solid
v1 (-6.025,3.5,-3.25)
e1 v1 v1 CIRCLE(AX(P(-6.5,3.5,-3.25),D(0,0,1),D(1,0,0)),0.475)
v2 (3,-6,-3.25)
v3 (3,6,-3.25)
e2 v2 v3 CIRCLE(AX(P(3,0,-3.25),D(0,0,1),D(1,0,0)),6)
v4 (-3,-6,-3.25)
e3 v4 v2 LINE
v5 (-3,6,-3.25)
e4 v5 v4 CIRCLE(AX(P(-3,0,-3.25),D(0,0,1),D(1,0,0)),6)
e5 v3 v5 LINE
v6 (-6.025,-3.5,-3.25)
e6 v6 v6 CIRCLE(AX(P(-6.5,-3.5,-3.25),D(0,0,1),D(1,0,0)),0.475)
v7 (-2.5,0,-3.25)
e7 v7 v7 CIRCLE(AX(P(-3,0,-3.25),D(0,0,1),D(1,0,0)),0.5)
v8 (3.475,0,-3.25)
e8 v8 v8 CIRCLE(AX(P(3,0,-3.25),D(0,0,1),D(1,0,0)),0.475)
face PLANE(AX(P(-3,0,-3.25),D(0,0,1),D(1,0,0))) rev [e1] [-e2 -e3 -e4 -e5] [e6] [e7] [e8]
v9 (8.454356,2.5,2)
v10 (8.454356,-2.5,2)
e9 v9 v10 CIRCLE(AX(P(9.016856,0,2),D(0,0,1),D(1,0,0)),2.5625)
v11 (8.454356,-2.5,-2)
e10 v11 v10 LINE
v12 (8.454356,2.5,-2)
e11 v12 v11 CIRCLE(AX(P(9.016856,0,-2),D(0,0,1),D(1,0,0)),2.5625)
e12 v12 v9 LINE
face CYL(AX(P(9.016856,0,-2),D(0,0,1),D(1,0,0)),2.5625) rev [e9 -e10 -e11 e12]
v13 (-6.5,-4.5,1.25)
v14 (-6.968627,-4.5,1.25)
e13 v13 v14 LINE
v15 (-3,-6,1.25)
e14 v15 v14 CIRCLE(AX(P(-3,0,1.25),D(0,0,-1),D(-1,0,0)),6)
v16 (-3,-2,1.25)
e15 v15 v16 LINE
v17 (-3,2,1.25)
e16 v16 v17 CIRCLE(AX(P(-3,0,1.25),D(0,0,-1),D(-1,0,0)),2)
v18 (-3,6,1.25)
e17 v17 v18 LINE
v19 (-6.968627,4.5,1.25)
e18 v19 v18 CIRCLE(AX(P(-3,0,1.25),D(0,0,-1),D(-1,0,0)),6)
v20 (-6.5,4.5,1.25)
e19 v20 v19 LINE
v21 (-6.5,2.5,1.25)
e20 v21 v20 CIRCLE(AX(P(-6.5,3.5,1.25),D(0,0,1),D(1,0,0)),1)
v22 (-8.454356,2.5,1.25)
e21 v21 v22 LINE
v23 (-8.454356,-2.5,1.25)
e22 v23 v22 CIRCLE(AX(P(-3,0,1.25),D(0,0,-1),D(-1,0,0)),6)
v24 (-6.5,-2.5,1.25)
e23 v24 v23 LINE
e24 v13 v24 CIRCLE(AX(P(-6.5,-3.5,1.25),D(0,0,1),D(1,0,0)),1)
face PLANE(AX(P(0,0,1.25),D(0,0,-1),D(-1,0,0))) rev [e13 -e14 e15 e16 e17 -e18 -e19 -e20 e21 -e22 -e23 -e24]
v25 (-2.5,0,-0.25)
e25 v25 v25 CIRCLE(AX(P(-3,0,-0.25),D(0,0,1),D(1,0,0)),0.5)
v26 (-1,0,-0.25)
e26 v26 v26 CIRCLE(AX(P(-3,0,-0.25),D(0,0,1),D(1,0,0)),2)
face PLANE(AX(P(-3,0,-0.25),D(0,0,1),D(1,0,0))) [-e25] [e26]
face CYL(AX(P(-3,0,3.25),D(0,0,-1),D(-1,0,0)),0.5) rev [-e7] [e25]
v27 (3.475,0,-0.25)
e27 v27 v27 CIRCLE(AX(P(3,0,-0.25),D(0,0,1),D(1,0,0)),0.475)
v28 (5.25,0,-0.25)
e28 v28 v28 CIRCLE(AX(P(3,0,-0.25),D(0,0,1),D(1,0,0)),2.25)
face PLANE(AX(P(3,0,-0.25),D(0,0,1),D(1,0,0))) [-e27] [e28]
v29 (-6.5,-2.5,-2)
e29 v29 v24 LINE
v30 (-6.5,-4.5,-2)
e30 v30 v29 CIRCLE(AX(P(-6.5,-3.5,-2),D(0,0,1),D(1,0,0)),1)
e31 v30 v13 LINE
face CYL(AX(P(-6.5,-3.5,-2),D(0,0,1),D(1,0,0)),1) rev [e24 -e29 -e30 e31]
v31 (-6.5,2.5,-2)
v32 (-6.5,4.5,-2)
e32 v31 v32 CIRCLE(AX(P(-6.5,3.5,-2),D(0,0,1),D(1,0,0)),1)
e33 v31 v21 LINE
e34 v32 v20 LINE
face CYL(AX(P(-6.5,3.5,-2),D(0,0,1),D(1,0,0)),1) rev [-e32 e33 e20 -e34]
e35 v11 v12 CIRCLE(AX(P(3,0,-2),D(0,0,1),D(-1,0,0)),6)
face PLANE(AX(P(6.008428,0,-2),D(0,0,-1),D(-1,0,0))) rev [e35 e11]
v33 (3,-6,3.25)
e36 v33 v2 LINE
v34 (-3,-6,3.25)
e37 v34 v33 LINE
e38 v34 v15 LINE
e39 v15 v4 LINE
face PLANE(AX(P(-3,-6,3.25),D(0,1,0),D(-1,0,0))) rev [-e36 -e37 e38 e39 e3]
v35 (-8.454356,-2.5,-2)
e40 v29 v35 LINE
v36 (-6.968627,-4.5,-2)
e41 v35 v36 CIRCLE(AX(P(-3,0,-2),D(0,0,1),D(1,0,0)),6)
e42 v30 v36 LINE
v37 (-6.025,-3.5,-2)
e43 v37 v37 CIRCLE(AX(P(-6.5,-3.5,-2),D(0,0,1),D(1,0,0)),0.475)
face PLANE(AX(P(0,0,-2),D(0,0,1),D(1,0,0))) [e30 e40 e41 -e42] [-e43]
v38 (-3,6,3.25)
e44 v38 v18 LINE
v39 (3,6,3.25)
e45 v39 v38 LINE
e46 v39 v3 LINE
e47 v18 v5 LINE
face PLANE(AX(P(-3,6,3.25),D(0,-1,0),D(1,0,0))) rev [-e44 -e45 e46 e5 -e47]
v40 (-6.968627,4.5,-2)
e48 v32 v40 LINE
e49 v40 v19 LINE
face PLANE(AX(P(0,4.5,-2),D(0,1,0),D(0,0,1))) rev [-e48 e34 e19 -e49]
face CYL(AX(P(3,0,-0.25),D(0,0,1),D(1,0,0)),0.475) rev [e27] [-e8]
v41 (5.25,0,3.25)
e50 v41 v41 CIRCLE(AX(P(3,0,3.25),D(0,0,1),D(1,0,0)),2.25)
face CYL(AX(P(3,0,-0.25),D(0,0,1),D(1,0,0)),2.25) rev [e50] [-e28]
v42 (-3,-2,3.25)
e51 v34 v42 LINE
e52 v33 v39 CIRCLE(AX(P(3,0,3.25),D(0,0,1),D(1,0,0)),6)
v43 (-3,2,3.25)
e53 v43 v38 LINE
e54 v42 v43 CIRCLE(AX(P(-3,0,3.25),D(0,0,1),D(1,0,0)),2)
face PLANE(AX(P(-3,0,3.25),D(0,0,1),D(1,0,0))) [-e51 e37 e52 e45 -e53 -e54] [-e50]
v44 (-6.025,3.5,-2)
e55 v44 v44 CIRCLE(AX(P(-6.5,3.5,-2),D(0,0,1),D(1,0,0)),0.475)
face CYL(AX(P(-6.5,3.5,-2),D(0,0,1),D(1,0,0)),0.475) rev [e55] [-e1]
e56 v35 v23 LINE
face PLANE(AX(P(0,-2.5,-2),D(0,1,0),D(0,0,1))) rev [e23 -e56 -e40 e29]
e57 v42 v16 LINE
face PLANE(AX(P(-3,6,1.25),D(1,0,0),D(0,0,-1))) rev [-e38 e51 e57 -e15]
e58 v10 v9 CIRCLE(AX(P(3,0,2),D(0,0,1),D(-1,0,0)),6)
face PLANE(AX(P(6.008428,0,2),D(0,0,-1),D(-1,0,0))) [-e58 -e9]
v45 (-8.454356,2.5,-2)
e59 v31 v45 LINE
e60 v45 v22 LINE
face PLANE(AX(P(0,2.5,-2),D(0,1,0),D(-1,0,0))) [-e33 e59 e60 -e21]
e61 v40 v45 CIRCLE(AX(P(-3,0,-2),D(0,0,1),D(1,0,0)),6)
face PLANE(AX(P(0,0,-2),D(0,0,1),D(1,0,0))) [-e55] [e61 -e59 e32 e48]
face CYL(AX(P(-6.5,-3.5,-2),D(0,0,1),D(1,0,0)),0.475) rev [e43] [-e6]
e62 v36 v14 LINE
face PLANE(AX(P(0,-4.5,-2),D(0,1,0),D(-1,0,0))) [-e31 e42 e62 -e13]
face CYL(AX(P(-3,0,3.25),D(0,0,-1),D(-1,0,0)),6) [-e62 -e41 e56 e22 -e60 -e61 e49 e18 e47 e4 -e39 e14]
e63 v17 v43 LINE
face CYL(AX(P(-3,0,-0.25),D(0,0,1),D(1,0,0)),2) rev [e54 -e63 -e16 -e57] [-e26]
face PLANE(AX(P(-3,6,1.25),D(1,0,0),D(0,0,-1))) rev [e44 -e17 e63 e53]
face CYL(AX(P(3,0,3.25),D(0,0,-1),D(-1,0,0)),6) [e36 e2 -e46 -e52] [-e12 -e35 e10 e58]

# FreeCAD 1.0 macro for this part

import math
import FreeCAD as App
import Part
import Sketcher


def add_polygon(sketch, points):
    """Adds a closed chain of lines whose ends are joined by coincident constraints."""
    first, n = sketch.GeometryCount, len(points)
    for a, b in zip(points, points[1:] + points[:1]):
        sketch.addGeometry(Part.LineSegment(App.Vector(*a, 0), App.Vector(*b, 0)), False)
    for i in range(n):
        sketch.addConstraint(Sketcher.Constraint("Coincident", first + i, 2, first + (i + 1) % n, 1))

doc = App.newDocument("Part")
body = doc.addObject("PartDesign::Body", "Body")

# Sketch on XY plane
sketch1 = doc.addObject("Sketcher::SketchObject", "Sketch")
body.addObject(sketch1)
sketch1.AttachmentSupport = (doc.XY_Plane, [""])
sketch1.MapMode = "FlatFace"
sketch1.addGeometry(Part.LineSegment(App.Vector(3, 6, 0), App.Vector(-3, 6, 0)), False)
sketch1.addGeometry(Part.ArcOfCircle(Part.Circle(App.Vector(-3, 0, 0), App.Vector(0, 0, 1), 6), math.radians(90), math.radians(270)), False)
sketch1.addGeometry(Part.LineSegment(App.Vector(-3, -6, 0), App.Vector(3, -6, 0)), False)
sketch1.addGeometry(Part.ArcOfCircle(Part.Circle(App.Vector(3, 0, 0), App.Vector(0, 0, 1), 6), math.radians(-90), math.radians(90)), False)
sketch1.addGeometry(Part.Circle(App.Vector(-3, 0, 0), App.Vector(0, 0, 1), 0.5), False)
sketch1.addConstraint(Sketcher.Constraint("Tangent", 0, 2, 1, 1))
sketch1.addConstraint(Sketcher.Constraint("Tangent", 1, 2, 2, 1))
sketch1.addConstraint(Sketcher.Constraint("Tangent", 2, 2, 3, 1))
sketch1.addConstraint(Sketcher.Constraint("Tangent", 3, 2, 0, 1))
sketch1.addConstraint(Sketcher.Constraint("Horizontal", 0))
sketch1.addConstraint(Sketcher.Constraint("Horizontal", 2))
sketch1.addConstraint(Sketcher.Constraint("Coincident", 4, 3, 1, 3))
sketch1.addConstraint(Sketcher.Constraint("Symmetric", 1, 3, 3, 3, -1, 1))
sketch1.addConstraint(Sketcher.Constraint("Diameter", 4, 1.0))
sketch1.addConstraint(Sketcher.Constraint("Radius", 1, 6.0))
sketch1.addConstraint(Sketcher.Constraint("DistanceX", 0, 2, 0, 1, 6.0))
pad1 = doc.addObject("PartDesign::Pad", "Pad")
body.addObject(pad1)
pad1.Profile = sketch1
pad1.Length = 6.5
pad1.Midplane = True

# Sketch on XY plane
sketch2 = doc.addObject("Sketcher::SketchObject", "Sketch001")
body.addObject(sketch2)
sketch2.AttachmentSupport = (doc.XY_Plane, [""])
sketch2.MapMode = "FlatFace"
sketch2.addGeometry(Part.ArcOfCircle(Part.Circle(App.Vector(9.016856, 0, 0), App.Vector(0, 0, 1), 2.5625), math.radians(102.680383), math.radians(257.319617)), False)
sketch2.addGeometry(Part.ArcOfCircle(Part.Circle(App.Vector(3, 0, 0), App.Vector(0, 0, 1), 6), math.radians(-24.624318), math.radians(24.624318)), False)
sketch2.addConstraint(Sketcher.Constraint("Coincident", 0, 1, 1, 2))
sketch2.addConstraint(Sketcher.Constraint("Coincident", 1, 1, 0, 2))
sketch2.addConstraint(Sketcher.Constraint("Symmetric", 0, 1, 1, 1, -1))
sketch2.addConstraint(Sketcher.Constraint("Radius", 1, 6.0))
sketch2.addConstraint(Sketcher.Constraint("DistanceX", -1, 1, 1, 3, 3.0))
sketch2.addConstraint(Sketcher.Constraint("DistanceY", 1, 1, 0, 1, 5.0))
sketch2.addConstraint(Sketcher.Constraint("Radius", 0, 2.5625))
pocket1 = doc.addObject("PartDesign::Pocket", "Pocket")
body.addObject(pocket1)
pocket1.Profile = sketch2
pocket1.Length = 4
pocket1.Midplane = True

# Sketch on XY plane
sketch3 = doc.addObject("Sketcher::SketchObject", "Sketch002")
body.addObject(sketch3)
sketch3.AttachmentSupport = (doc.XY_Plane, [""])
sketch3.MapMode = "FlatFace"
sketch3.AttachmentOffset = App.Placement(App.Vector(0, 0, 3.25), App.Rotation())
add_polygon(sketch3, [(-12.709711, 6), (-12.709711, -7.055759), (-3, -7.055759), (-3, 6)])  # lines 0-3
sketch3.addConstraint(Sketcher.Constraint("Vertical", 0))
sketch3.addConstraint(Sketcher.Constraint("Horizontal", 1))
sketch3.addConstraint(Sketcher.Constraint("Vertical", 2))
sketch3.addConstraint(Sketcher.Constraint("Horizontal", 3))
sketch3.addConstraint(Sketcher.Constraint("DistanceX", 1, 2, -1, 1, 3.0))
sketch3.addConstraint(Sketcher.Constraint("DistanceY", -1, 1, 2, 2, 6.0))
sketch3.addConstraint(Sketcher.Constraint("DistanceX", 1, 1, 1, 2, 9.709711))
sketch3.addConstraint(Sketcher.Constraint("DistanceY", 0, 2, 0, 1, 13.055759))
pocket2 = doc.addObject("PartDesign::Pocket", "Pocket001")
body.addObject(pocket2)
pocket2.Profile = sketch3
pocket2.Length = 2

# Sketch on XY plane
sketch4 = doc.addObject("Sketcher::SketchObject", "Sketch003")
body.addObject(sketch4)
sketch4.AttachmentSupport = (doc.XY_Plane, [""])
sketch4.MapMode = "FlatFace"
sketch4.AttachmentOffset = App.Placement(App.Vector(0, 0, 3.25), App.Rotation())
sketch4.addGeometry(Part.Circle(App.Vector(-3, 0, 0), App.Vector(0, 0, 1), 2), False)
sketch4.addConstraint(Sketcher.Constraint("PointOnObject", 0, 3, -1))
sketch4.addConstraint(Sketcher.Constraint("Diameter", 0, 4.0))
sketch4.addConstraint(Sketcher.Constraint("DistanceX", 0, 3, -1, 1, 3.0))
pocket3 = doc.addObject("PartDesign::Pocket", "Pocket002")
body.addObject(pocket3)
pocket3.Profile = sketch4
pocket3.Length = 3.5

# Sketch on XY plane
sketch5 = doc.addObject("Sketcher::SketchObject", "Sketch004")
body.addObject(sketch5)
sketch5.AttachmentSupport = (doc.XY_Plane, [""])
sketch5.MapMode = "FlatFace"
sketch5.AttachmentOffset = App.Placement(App.Vector(0, 0, 3.25), App.Rotation())
sketch5.addGeometry(Part.Circle(App.Vector(3, 0, 0), App.Vector(0, 0, 1), 2.25), False)
sketch5.addConstraint(Sketcher.Constraint("PointOnObject", 0, 3, -1))
sketch5.addConstraint(Sketcher.Constraint("Diameter", 0, 4.5))
sketch5.addConstraint(Sketcher.Constraint("DistanceX", -1, 1, 0, 3, 3.0))
pocket4 = doc.addObject("PartDesign::Pocket", "Pocket003")
body.addObject(pocket4)
pocket4.Profile = sketch5
pocket4.Length = 3.5

# Sketch on XY plane
sketch6 = doc.addObject("Sketcher::SketchObject", "Sketch005")
body.addObject(sketch6)
sketch6.AttachmentSupport = (doc.XY_Plane, [""])
sketch6.MapMode = "FlatFace"
sketch6.AttachmentOffset = App.Placement(App.Vector(0, 0, 1.25), App.Rotation())
sketch6.addGeometry(Part.ArcOfCircle(Part.Circle(App.Vector(-6.5, -3.5, 0), App.Vector(0, 0, 1), 1), math.radians(-90), math.radians(90)), False)
sketch6.addGeometry(Part.LineSegment(App.Vector(-6.5, -2.5, 0), App.Vector(-8.454356, -2.5, 0)), False)
sketch6.addGeometry(Part.ArcOfCircle(Part.Circle(App.Vector(-3, 0, 0), App.Vector(0, 0, 1), 6), math.radians(-155.375682), math.radians(-131.409622)), False)
sketch6.addGeometry(Part.LineSegment(App.Vector(-6.968627, -4.5, 0), App.Vector(-6.5, -4.5, 0)), False)
sketch6.addGeometry(Part.ArcOfCircle(Part.Circle(App.Vector(-6.5, 3.5, 0), App.Vector(0, 0, 1), 1), math.radians(-90), math.radians(90)), False)
sketch6.addGeometry(Part.LineSegment(App.Vector(-6.5, 4.5, 0), App.Vector(-6.968627, 4.5, 0)), False)
sketch6.addGeometry(Part.ArcOfCircle(Part.Circle(App.Vector(-3, 0, 0), App.Vector(0, 0, 1), 6), math.radians(131.409622), math.radians(155.375682)), False)
sketch6.addGeometry(Part.LineSegment(App.Vector(-8.454356, 2.5, 0), App.Vector(-6.5, 2.5, 0)), False)
sketch6.addConstraint(Sketcher.Constraint("Tangent", 0, 2, 1, 1))
sketch6.addConstraint(Sketcher.Constraint("Coincident", 1, 2, 2, 1))
sketch6.addConstraint(Sketcher.Constraint("Coincident", 2, 2, 3, 1))
sketch6.addConstraint(Sketcher.Constraint("Tangent", 3, 2, 0, 1))
sketch6.addConstraint(Sketcher.Constraint("Tangent", 4, 2, 5, 1))
sketch6.addConstraint(Sketcher.Constraint("Coincident", 5, 2, 6, 1))
sketch6.addConstraint(Sketcher.Constraint("Coincident", 6, 2, 7, 1))
sketch6.addConstraint(Sketcher.Constraint("Tangent", 7, 2, 4, 1))
sketch6.addConstraint(Sketcher.Constraint("Horizontal", 1))
sketch6.addConstraint(Sketcher.Constraint("Horizontal", 3))
sketch6.addConstraint(Sketcher.Constraint("Horizontal", 5))
sketch6.addConstraint(Sketcher.Constraint("Horizontal", 7))
sketch6.addConstraint(Sketcher.Constraint("Coincident", 6, 3, 2, 3))
sketch6.addConstraint(Sketcher.Constraint("Equal", 0, 4))
sketch6.addConstraint(Sketcher.Constraint("Equal", 2, 6))
sketch6.addConstraint(Sketcher.Constraint("Symmetric", 0, 3, 4, 3, -1))
sketch6.addConstraint(Sketcher.Constraint("PointOnObject", 2, 3, -1))
sketch6.addConstraint(Sketcher.Constraint("Radius", 0, 1.0))
sketch6.addConstraint(Sketcher.Constraint("Radius", 2, 6.0))
sketch6.addConstraint(Sketcher.Constraint("DistanceX", 2, 3, -1, 1, 3.0))
sketch6.addConstraint(Sketcher.Constraint("DistanceY", 0, 3, 4, 3, 7.0))
sketch6.addConstraint(Sketcher.Constraint("DistanceX", 0, 3, -1, 1, 6.5))
pocket5 = doc.addObject("PartDesign::Pocket", "Pocket004")
body.addObject(pocket5)
pocket5.Profile = sketch6
pocket5.Length = 3.25

# Sketch on XY plane
sketch7 = doc.addObject("Sketcher::SketchObject", "Sketch006")
body.addObject(sketch7)
sketch7.AttachmentSupport = (doc.XY_Plane, [""])
sketch7.MapMode = "FlatFace"
sketch7.AttachmentOffset = App.Placement(App.Vector(0, 0, -0.25), App.Rotation())
sketch7.addGeometry(Part.Circle(App.Vector(3, 0, 0), App.Vector(0, 0, 1), 0.475), False)
sketch7.addConstraint(Sketcher.Constraint("PointOnObject", 0, 3, -1))
sketch7.addConstraint(Sketcher.Constraint("Diameter", 0, 0.95))
sketch7.addConstraint(Sketcher.Constraint("DistanceX", -1, 1, 0, 3, 3.0))
doc.recompute()
hole = doc.addObject("PartDesign::Hole", "Hole")
body.addObject(hole)
hole.Profile = sketch7
hole.ThreadType = "None"
hole.Diameter = 0.95
hole.DepthType = "Dimension"
hole.Depth = 13.65
hole.DrillPoint = "Angled"
hole.DrillPointAngle = 118

# Sketch on XY plane
sketch8 = doc.addObject("Sketcher::SketchObject", "Sketch007")
body.addObject(sketch8)
sketch8.AttachmentSupport = (doc.XY_Plane, [""])
sketch8.MapMode = "FlatFace"
sketch8.AttachmentOffset = App.Placement(App.Vector(0, 0, -2), App.Rotation())
sketch8.addGeometry(Part.Circle(App.Vector(-6.5, 3.5, 0), App.Vector(0, 0, 1), 0.475), False)
sketch8.addGeometry(Part.Circle(App.Vector(-6.5, -3.5, 0), App.Vector(0, 0, 1), 0.475), False)
sketch8.addConstraint(Sketcher.Constraint("Equal", 0, 1))
sketch8.addConstraint(Sketcher.Constraint("Symmetric", 0, 3, 1, 3, -1))
sketch8.addConstraint(Sketcher.Constraint("Diameter", 0, 0.95))
sketch8.addConstraint(Sketcher.Constraint("DistanceY", 1, 3, 0, 3, 7.0))
sketch8.addConstraint(Sketcher.Constraint("DistanceX", 0, 3, -1, 1, 6.5))
doc.recompute()
hole2 = doc.addObject("PartDesign::Hole", "Hole001")
body.addObject(hole2)
hole2.Profile = sketch8
hole2.ThreadType = "None"
hole2.Diameter = 0.95
hole2.DepthType = "Dimension"
hole2.Depth = 13.65
hole2.DrillPoint = "Angled"
hole2.DrillPointAngle = 118

doc.recompute()
